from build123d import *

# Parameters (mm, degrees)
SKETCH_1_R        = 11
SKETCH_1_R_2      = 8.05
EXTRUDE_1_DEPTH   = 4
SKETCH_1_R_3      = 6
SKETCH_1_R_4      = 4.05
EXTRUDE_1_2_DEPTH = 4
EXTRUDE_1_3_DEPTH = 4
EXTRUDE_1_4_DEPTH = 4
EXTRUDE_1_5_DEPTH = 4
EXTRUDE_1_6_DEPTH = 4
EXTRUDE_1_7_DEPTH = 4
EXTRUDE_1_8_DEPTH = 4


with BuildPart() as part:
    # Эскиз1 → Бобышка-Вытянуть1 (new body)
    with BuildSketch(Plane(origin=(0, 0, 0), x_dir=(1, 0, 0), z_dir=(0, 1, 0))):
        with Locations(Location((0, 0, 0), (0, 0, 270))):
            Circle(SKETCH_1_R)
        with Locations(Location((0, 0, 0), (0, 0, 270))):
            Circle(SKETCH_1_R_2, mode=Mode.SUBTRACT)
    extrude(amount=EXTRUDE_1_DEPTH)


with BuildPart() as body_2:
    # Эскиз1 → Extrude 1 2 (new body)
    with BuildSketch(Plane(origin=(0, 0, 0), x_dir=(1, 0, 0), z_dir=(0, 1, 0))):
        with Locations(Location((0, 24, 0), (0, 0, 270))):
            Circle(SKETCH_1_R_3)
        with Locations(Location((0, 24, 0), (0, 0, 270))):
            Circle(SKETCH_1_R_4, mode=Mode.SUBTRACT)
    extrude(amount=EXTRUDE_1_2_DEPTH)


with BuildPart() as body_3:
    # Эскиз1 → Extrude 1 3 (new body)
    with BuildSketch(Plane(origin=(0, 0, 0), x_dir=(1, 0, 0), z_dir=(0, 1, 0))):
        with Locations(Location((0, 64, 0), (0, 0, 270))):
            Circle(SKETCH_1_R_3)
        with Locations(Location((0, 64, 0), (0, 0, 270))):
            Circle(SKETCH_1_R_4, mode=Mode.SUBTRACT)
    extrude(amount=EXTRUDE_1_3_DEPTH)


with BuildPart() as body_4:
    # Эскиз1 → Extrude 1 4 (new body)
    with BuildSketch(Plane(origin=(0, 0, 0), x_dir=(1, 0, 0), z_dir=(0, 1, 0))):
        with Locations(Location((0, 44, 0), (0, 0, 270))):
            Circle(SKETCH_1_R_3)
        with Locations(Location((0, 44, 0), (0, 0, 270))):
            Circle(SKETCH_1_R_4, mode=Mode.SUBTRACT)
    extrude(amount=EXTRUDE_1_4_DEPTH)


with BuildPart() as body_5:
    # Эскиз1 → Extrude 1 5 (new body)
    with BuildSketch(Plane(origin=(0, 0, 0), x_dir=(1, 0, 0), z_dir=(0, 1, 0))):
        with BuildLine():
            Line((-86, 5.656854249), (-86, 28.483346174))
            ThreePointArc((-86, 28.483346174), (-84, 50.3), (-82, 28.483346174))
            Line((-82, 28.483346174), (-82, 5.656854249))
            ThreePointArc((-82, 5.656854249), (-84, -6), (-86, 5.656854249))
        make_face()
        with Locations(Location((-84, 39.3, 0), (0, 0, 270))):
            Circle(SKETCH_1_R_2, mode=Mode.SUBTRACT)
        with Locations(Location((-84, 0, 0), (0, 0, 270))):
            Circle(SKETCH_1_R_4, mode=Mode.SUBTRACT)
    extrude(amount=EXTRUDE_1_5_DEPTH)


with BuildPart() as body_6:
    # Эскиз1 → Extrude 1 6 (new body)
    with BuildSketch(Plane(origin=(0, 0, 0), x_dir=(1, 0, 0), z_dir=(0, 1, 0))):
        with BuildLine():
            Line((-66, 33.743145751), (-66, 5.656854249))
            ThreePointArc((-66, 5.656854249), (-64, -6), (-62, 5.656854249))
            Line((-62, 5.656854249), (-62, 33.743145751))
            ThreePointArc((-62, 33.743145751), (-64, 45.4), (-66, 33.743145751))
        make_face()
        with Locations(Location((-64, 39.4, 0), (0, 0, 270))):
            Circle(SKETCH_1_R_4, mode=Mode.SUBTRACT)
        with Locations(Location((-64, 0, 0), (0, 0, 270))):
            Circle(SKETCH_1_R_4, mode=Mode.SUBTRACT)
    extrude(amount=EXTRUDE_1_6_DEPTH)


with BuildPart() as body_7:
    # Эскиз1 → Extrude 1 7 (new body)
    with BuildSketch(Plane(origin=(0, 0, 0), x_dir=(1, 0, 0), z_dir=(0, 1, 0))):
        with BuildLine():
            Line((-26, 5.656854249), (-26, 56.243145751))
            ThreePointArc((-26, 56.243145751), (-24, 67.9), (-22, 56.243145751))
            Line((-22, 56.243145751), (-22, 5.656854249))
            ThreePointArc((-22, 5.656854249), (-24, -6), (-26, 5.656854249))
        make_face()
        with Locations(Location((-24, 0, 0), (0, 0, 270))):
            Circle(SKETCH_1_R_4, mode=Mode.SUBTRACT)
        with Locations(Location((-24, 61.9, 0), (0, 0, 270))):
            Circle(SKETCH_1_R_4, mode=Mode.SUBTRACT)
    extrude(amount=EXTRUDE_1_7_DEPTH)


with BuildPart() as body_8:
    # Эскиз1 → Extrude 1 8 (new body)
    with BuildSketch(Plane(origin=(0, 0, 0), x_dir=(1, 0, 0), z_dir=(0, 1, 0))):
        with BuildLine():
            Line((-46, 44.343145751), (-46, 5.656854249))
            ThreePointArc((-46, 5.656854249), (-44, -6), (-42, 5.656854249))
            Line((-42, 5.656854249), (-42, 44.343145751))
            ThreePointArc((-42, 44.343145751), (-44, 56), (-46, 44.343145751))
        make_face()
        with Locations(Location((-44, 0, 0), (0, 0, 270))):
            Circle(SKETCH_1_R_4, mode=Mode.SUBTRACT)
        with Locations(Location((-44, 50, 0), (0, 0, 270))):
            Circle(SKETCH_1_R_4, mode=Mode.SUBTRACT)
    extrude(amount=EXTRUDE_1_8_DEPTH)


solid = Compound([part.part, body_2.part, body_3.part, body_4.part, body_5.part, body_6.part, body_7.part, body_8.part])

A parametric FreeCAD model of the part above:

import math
import FreeCAD as App
import Part
import Sketcher
from FreeCAD import Vector
Q = App.Units.Quantity

doc = App.newDocument("Part")
params = doc.addObject("Spreadsheet::Sheet", "Params")
for row, (alias, value) in enumerate([
    ("sketch1_diameter", "22 mm"),
    ("sketch1_diameter2", "16.1 mm"),
    ("pad1_length", "4 mm"),
    ("sketch2_diameter", "12 mm"),
    ("sketch2_diameter2", "8.1 mm"),
    ("pad2_length", "4 mm"),
    ("sketch3_diameter", "12 mm"),
    ("sketch3_diameter2", "8.1 mm"),
    ("pad3_length", "4 mm"),
    ("sketch4_diameter", "12 mm"),
    ("sketch4_diameter2", "8.1 mm"),
    ("pad4_length", "4 mm"),
    ("sketch5_radius", "6 mm"),
    ("sketch5_radius2", "11 mm"),
    ("sketch5_diameter", "8.1 mm"),
    ("sketch5_diameter2", "16.1 mm"),
    ("pad5_length", "4 mm"),
    ("sketch6_radius", "6 mm"),
    ("sketch6_diameter", "8.1 mm"),
    ("pad6_length", "4 mm"),
    ("sketch7_radius", "6 mm"),
    ("sketch7_diameter", "8.1 mm"),
    ("pad7_length", "4 mm"),
    ("sketch8_radius", "6 mm"),
    ("sketch8_diameter", "8.1 mm"),
    ("pad8_length", "4 mm"),
], start=1):
    params.set(f"A{row}", alias)
    params.set(f"B{row}", "=" + value)
    params.setAlias(f"B{row}", alias)

body = doc.addObject("PartDesign::Body", "Body")

sketch1 = body.newObject("Sketcher::SketchObject", "Sketch")
sketch1.AttachmentSupport = (doc.getObject("XZ_Plane"), [""])
sketch1.MapMode = "FlatFace"
sketch1.addGeometry(Part.Circle(Vector(0, 0, 0), Vector(0, 0, 1), 11), False)
sketch1.addGeometry(Part.Circle(Vector(0, 0, 0), Vector(0, 0, 1), 8.05), False)
sketch1.addConstraint(Sketcher.Constraint("Coincident", 0, 3, -1, 1))
sketch1.addConstraint(Sketcher.Constraint("Coincident", 1, 3, -1, 1))
sketch1.addConstraint(Sketcher.Constraint("Diameter", 0, Q("22 mm")))
sketch1.addConstraint(Sketcher.Constraint("Diameter", 1, Q("16.1 mm")))
sketch1.setExpression("Constraints[2]", "Params.sketch1_diameter")
sketch1.setExpression("Constraints[3]", "Params.sketch1_diameter2")
pad1 = body.newObject("PartDesign::Pad", "Pad")
pad1.Profile = sketch1
pad1.setExpression("Length", "Params.pad1_length")
pad1.Reversed = True
body2 = doc.addObject("PartDesign::Body", "Body001")

sketch2 = body2.newObject("Sketcher::SketchObject", "Sketch001")
sketch2.AttachmentSupport = (doc.getObject("XZ_Plane001"), [""])
sketch2.MapMode = "FlatFace"
sketch2.addGeometry(Part.Circle(Vector(0, -24, 0), Vector(0, 0, 1), 6), False)
sketch2.addGeometry(Part.Circle(Vector(0, -24, 0), Vector(0, 0, 1), 4.05), False)
sketch2.addConstraint(Sketcher.Constraint("Coincident", 1, 3, 0, 3))
sketch2.addConstraint(Sketcher.Constraint("PointOnObject", 0, 3, -2))
sketch2.addConstraint(Sketcher.Constraint("Diameter", 0, Q("12 mm")))
sketch2.addConstraint(Sketcher.Constraint("Diameter", 1, Q("8.1 mm")))
sketch2.addConstraint(Sketcher.Constraint("DistanceY", 0, 3, -1, 1, Q("24 mm")))
sketch2.setExpression("Constraints[2]", "Params.sketch2_diameter")
sketch2.setExpression("Constraints[3]", "Params.sketch2_diameter2")
pad2 = body2.newObject("PartDesign::Pad", "Pad001")
pad2.Profile = sketch2
pad2.setExpression("Length", "Params.pad2_length")
pad2.Reversed = True
body3 = doc.addObject("PartDesign::Body", "Body002")

sketch3 = body3.newObject("Sketcher::SketchObject", "Sketch002")
sketch3.AttachmentSupport = (doc.getObject("XZ_Plane002"), [""])
sketch3.MapMode = "FlatFace"
sketch3.addGeometry(Part.Circle(Vector(0, -64, 0), Vector(0, 0, 1), 6), False)
sketch3.addGeometry(Part.Circle(Vector(0, -64, 0), Vector(0, 0, 1), 4.05), False)
sketch3.addConstraint(Sketcher.Constraint("Coincident", 1, 3, 0, 3))
sketch3.addConstraint(Sketcher.Constraint("PointOnObject", 0, 3, -2))
sketch3.addConstraint(Sketcher.Constraint("Diameter", 0, Q("12 mm")))
sketch3.addConstraint(Sketcher.Constraint("Diameter", 1, Q("8.1 mm")))
sketch3.addConstraint(Sketcher.Constraint("DistanceY", 0, 3, -1, 1, Q("64 mm")))
sketch3.setExpression("Constraints[2]", "Params.sketch3_diameter")
sketch3.setExpression("Constraints[3]", "Params.sketch3_diameter2")
pad3 = body3.newObject("PartDesign::Pad", "Pad002")
pad3.Profile = sketch3
pad3.setExpression("Length", "Params.pad3_length")
pad3.Reversed = True
body4 = doc.addObject("PartDesign::Body", "Body003")

sketch4 = body4.newObject("Sketcher::SketchObject", "Sketch003")
sketch4.AttachmentSupport = (doc.getObject("XZ_Plane003"), [""])
sketch4.MapMode = "FlatFace"
sketch4.addGeometry(Part.Circle(Vector(0, -44, 0), Vector(0, 0, 1), 6), False)
sketch4.addGeometry(Part.Circle(Vector(0, -44, 0), Vector(0, 0, 1), 4.05), False)
sketch4.addConstraint(Sketcher.Constraint("Coincident", 1, 3, 0, 3))
sketch4.addConstraint(Sketcher.Constraint("PointOnObject", 0, 3, -2))
sketch4.addConstraint(Sketcher.Constraint("Diameter", 0, Q("12 mm")))
sketch4.addConstraint(Sketcher.Constraint("Diameter", 1, Q("8.1 mm")))
sketch4.addConstraint(Sketcher.Constraint("DistanceY", 0, 3, -1, 1, Q("44 mm")))
sketch4.setExpression("Constraints[2]", "Params.sketch4_diameter")
sketch4.setExpression("Constraints[3]", "Params.sketch4_diameter2")
pad4 = body4.newObject("PartDesign::Pad", "Pad003")
pad4.Profile = sketch4
pad4.setExpression("Length", "Params.pad4_length")
pad4.Reversed = True
body5 = doc.addObject("PartDesign::Body", "Body004")

sketch5 = body5.newObject("Sketcher::SketchObject", "Sketch004")
sketch5.AttachmentSupport = (doc.getObject("XZ_Plane004"), [""])
sketch5.MapMode = "FlatFace"
sketch5.addGeometry(Part.LineSegment(Vector(-86, -28.483346, 0), Vector(-86, -5.656854, 0)), False)
sketch5.addGeometry(Part.ArcOfCircle(Part.Circle(Vector(-84, 0, 0), Vector(0, 0, 1), 6), math.radians(-70.528779), math.radians(250.528779)), False)
sketch5.addGeometry(Part.LineSegment(Vector(-82, -5.656854, 0), Vector(-82, -28.483346, 0)), False)
sketch5.addGeometry(Part.ArcOfCircle(Part.Circle(Vector(-84, -39.3, 0), Vector(0, 0, 1), 11), math.radians(100.475682), math.radians(439.524318)), False)
sketch5.addGeometry(Part.Circle(Vector(-84, 0, 0), Vector(0, 0, 1), 4.05), False)
sketch5.addGeometry(Part.Circle(Vector(-84, -39.3, 0), Vector(0, 0, 1), 8.05), False)
sketch5.addConstraint(Sketcher.Constraint("Coincident", 0, 2, 1, 2))
sketch5.addConstraint(Sketcher.Constraint("Coincident", 1, 1, 2, 1))
sketch5.addConstraint(Sketcher.Constraint("Coincident", 2, 2, 3, 2))
sketch5.addConstraint(Sketcher.Constraint("Coincident", 3, 1, 0, 1))
sketch5.addConstraint(Sketcher.Constraint("Vertical", 0))
sketch5.addConstraint(Sketcher.Constraint("Vertical", 2))
sketch5.addConstraint(Sketcher.Constraint("Coincident", 4, 3, 1, 3))
sketch5.addConstraint(Sketcher.Constraint("Coincident", 5, 3, 3, 3))
sketch5.addConstraint(Sketcher.Constraint("PointOnObject", 1, 3, -1))
sketch5.addConstraint(Sketcher.Constraint("Horizontal", 0, 2, 1, 1))
sketch5.addConstraint(Sketcher.Constraint("Horizontal", 2, 2, 3, 1))
sketch5.addConstraint(Sketcher.Constraint("Radius", 1, Q("6 mm")))
sketch5.addConstraint(Sketcher.Constraint("Radius", 3, Q("11 mm")))
sketch5.addConstraint(Sketcher.Constraint("Diameter", 4, Q("8.1 mm")))
sketch5.addConstraint(Sketcher.Constraint("Diameter", 5, Q("16.1 mm")))
sketch5.addConstraint(Sketcher.Constraint("DistanceX", 1, 3, -1, 1, Q("84 mm")))
sketch5.addConstraint(Sketcher.Constraint("DistanceX", 0, 2, -1, 1, Q("86 mm")))
sketch5.addConstraint(Sketcher.Constraint("DistanceY", 3, 3, -1, 1, Q("39.3 mm")))
sketch5.setExpression("Constraints[11]", "Params.sketch5_radius")
sketch5.setExpression("Constraints[12]", "Params.sketch5_radius2")
sketch5.setExpression("Constraints[13]", "Params.sketch5_diameter")
sketch5.setExpression("Constraints[14]", "Params.sketch5_diameter2")
pad5 = body5.newObject("PartDesign::Pad", "Pad004")
pad5.Profile = sketch5
pad5.setExpression("Length", "Params.pad5_length")
pad5.Reversed = True
body6 = doc.addObject("PartDesign::Body", "Body005")

sketch6 = body6.newObject("Sketcher::SketchObject", "Sketch005")
sketch6.AttachmentSupport = (doc.getObject("XZ_Plane005"), [""])
sketch6.MapMode = "FlatFace"
sketch6.addGeometry(Part.LineSegment(Vector(-66, -33.743146, 0), Vector(-66, -5.656854, 0)), False)
sketch6.addGeometry(Part.ArcOfCircle(Part.Circle(Vector(-64, 0, 0), Vector(0, 0, 1), 6), math.radians(-70.528779), math.radians(250.528779)), False)
sketch6.addGeometry(Part.LineSegment(Vector(-62, -5.656854, 0), Vector(-62, -33.743146, 0)), False)
sketch6.addGeometry(Part.ArcOfCircle(Part.Circle(Vector(-64, -39.4, 0), Vector(0, 0, 1), 6), math.radians(109.471221), math.radians(430.528779)), False)
sketch6.addGeometry(Part.Circle(Vector(-64, 0, 0), Vector(0, 0, 1), 4.05), False)
sketch6.addGeometry(Part.Circle(Vector(-64, -39.4, 0), Vector(0, 0, 1), 4.05), False)
sketch6.addConstraint(Sketcher.Constraint("Coincident", 0, 2, 1, 2))
sketch6.addConstraint(Sketcher.Constraint("Coincident", 1, 1, 2, 1))
sketch6.addConstraint(Sketcher.Constraint("Coincident", 2, 2, 3, 2))
sketch6.addConstraint(Sketcher.Constraint("Coincident", 3, 1, 0, 1))
sketch6.addConstraint(Sketcher.Constraint("Vertical", 0))
sketch6.addConstraint(Sketcher.Constraint("Vertical", 2))
sketch6.addConstraint(Sketcher.Constraint("Coincident", 4, 3, 1, 3))
sketch6.addConstraint(Sketcher.Constraint("Coincident", 5, 3, 3, 3))
sketch6.addConstraint(Sketcher.Constraint("Equal", 1, 3))
sketch6.addConstraint(Sketcher.Constraint("Equal", 4, 5))
sketch6.addConstraint(Sketcher.Constraint("PointOnObject", 1, 3, -1))
sketch6.addConstraint(Sketcher.Constraint("Horizontal", 0, 2, 1, 1))
sketch6.addConstraint(Sketcher.Constraint("Horizontal", 2, 2, 3, 1))
sketch6.addConstraint(Sketcher.Constraint("Radius", 1, Q("6 mm")))
sketch6.addConstraint(Sketcher.Constraint("Diameter", 4, Q("8.1 mm")))
sketch6.addConstraint(Sketcher.Constraint("DistanceX", 1, 3, -1, 1, Q("64 mm")))
sketch6.addConstraint(Sketcher.Constraint("DistanceX", 0, 2, -1, 1, Q("66 mm")))
sketch6.addConstraint(Sketcher.Constraint("DistanceY", 3, 3, -1, 1, Q("39.4 mm")))
sketch6.setExpression("Constraints[13]", "Params.sketch6_radius")
sketch6.setExpression("Constraints[14]", "Params.sketch6_diameter")
pad6 = body6.newObject("PartDesign::Pad", "Pad005")
pad6.Profile = sketch6
pad6.setExpression("Length", "Params.pad6_length")
pad6.Reversed = True
body7 = doc.addObject("PartDesign::Body", "Body006")

sketch7 = body7.newObject("Sketcher::SketchObject", "Sketch006")
sketch7.AttachmentSupport = (doc.getObject("XZ_Plane006"), [""])
sketch7.MapMode = "FlatFace"
sketch7.addGeometry(Part.LineSegment(Vector(-26, -56.243146, 0), Vector(-26, -5.656854, 0)), False)
sketch7.addGeometry(Part.ArcOfCircle(Part.Circle(Vector(-24, 0, 0), Vector(0, 0, 1), 6), math.radians(-70.528779), math.radians(250.528779)), False)
sketch7.addGeometry(Part.LineSegment(Vector(-22, -5.656854, 0), Vector(-22, -56.243146, 0)), False)
sketch7.addGeometry(Part.ArcOfCircle(Part.Circle(Vector(-24, -61.9, 0), Vector(0, 0, 1), 6), math.radians(109.471221), math.radians(430.528779)), False)
sketch7.addGeometry(Part.Circle(Vector(-24, 0, 0), Vector(0, 0, 1), 4.05), False)
sketch7.addGeometry(Part.Circle(Vector(-24, -61.9, 0), Vector(0, 0, 1), 4.05), False)
sketch7.addConstraint(Sketcher.Constraint("Coincident", 0, 2, 1, 2))
sketch7.addConstraint(Sketcher.Constraint("Coincident", 1, 1, 2, 1))
sketch7.addConstraint(Sketcher.Constraint("Coincident", 2, 2, 3, 2))
sketch7.addConstraint(Sketcher.Constraint("Coincident", 3, 1, 0, 1))
sketch7.addConstraint(Sketcher.Constraint("Vertical", 0))
sketch7.addConstraint(Sketcher.Constraint("Vertical", 2))
sketch7.addConstraint(Sketcher.Constraint("Coincident", 4, 3, 1, 3))
sketch7.addConstraint(Sketcher.Constraint("Coincident", 5, 3, 3, 3))
sketch7.addConstraint(Sketcher.Constraint("Equal", 1, 3))
sketch7.addConstraint(Sketcher.Constraint("Equal", 4, 5))
sketch7.addConstraint(Sketcher.Constraint("PointOnObject", 1, 3, -1))
sketch7.addConstraint(Sketcher.Constraint("Horizontal", 0, 2, 1, 1))
sketch7.addConstraint(Sketcher.Constraint("Horizontal", 2, 2, 3, 1))
sketch7.addConstraint(Sketcher.Constraint("Radius", 1, Q("6 mm")))
sketch7.addConstraint(Sketcher.Constraint("Diameter", 4, Q("8.1 mm")))
sketch7.addConstraint(Sketcher.Constraint("DistanceX", 1, 3, -1, 1, Q("24 mm")))
sketch7.addConstraint(Sketcher.Constraint("DistanceX", 0, 2, -1, 1, Q("26 mm")))
sketch7.addConstraint(Sketcher.Constraint("DistanceY", 3, 3, -1, 1, Q("61.9 mm")))
sketch7.setExpression("Constraints[13]", "Params.sketch7_radius")
sketch7.setExpression("Constraints[14]", "Params.sketch7_diameter")
pad7 = body7.newObject("PartDesign::Pad", "Pad006")
pad7.Profile = sketch7
pad7.setExpression("Length", "Params.pad7_length")
pad7.Reversed = True
body8 = doc.addObject("PartDesign::Body", "Body007")

sketch8 = body8.newObject("Sketcher::SketchObject", "Sketch007")
sketch8.AttachmentSupport = (doc.getObject("XZ_Plane007"), [""])
sketch8.MapMode = "FlatFace"
sketch8.addGeometry(Part.LineSegment(Vector(-46, -44.343146, 0), Vector(-46, -5.656854, 0)), False)
sketch8.addGeometry(Part.ArcOfCircle(Part.Circle(Vector(-44, 0, 0), Vector(0, 0, 1), 6), math.radians(-70.528779), math.radians(250.528779)), False)
sketch8.addGeometry(Part.LineSegment(Vector(-42, -5.656854, 0), Vector(-42, -44.343146, 0)), False)
sketch8.addGeometry(Part.ArcOfCircle(Part.Circle(Vector(-44, -50, 0), Vector(0, 0, 1), 6), math.radians(109.471221), math.radians(430.528779)), False)
sketch8.addGeometry(Part.Circle(Vector(-44, 0, 0), Vector(0, 0, 1), 4.05), False)
sketch8.addGeometry(Part.Circle(Vector(-44, -50, 0), Vector(0, 0, 1), 4.05), False)
sketch8.addConstraint(Sketcher.Constraint("Coincident", 0, 2, 1, 2))
sketch8.addConstraint(Sketcher.Constraint("Coincident", 1, 1, 2, 1))
sketch8.addConstraint(Sketcher.Constraint("Coincident", 2, 2, 3, 2))
sketch8.addConstraint(Sketcher.Constraint("Coincident", 3, 1, 0, 1))
sketch8.addConstraint(Sketcher.Constraint("Vertical", 0))
sketch8.addConstraint(Sketcher.Constraint("Vertical", 2))
sketch8.addConstraint(Sketcher.Constraint("Coincident", 4, 3, 1, 3))
sketch8.addConstraint(Sketcher.Constraint("Coincident", 5, 3, 3, 3))
sketch8.addConstraint(Sketcher.Constraint("Equal", 1, 3))
sketch8.addConstraint(Sketcher.Constraint("Equal", 4, 5))
sketch8.addConstraint(Sketcher.Constraint("PointOnObject", 1, 3, -1))
sketch8.addConstraint(Sketcher.Constraint("Horizontal", 0, 2, 1, 1))
sketch8.addConstraint(Sketcher.Constraint("Horizontal", 2, 2, 3, 1))
sketch8.addConstraint(Sketcher.Constraint("Radius", 1, Q("6 mm")))
sketch8.addConstraint(Sketcher.Constraint("Diameter", 4, Q("8.1 mm")))
sketch8.addConstraint(Sketcher.Constraint("DistanceX", 1, 3, -1, 1, Q("44 mm")))
sketch8.addConstraint(Sketcher.Constraint("DistanceY", 3, 3, -1, 1, Q("50 mm")))
sketch8.addConstraint(Sketcher.Constraint("DistanceX", 0, 2, -1, 1, Q("46 mm")))
sketch8.setExpression("Constraints[13]", "Params.sketch8_radius")
sketch8.setExpression("Constraints[14]", "Params.sketch8_diameter")
pad8 = body8.newObject("PartDesign::Pad", "Pad007")
pad8.Profile = sketch8
pad8.setExpression("Length", "Params.pad8_length")
pad8.Reversed = True

doc.recompute()
